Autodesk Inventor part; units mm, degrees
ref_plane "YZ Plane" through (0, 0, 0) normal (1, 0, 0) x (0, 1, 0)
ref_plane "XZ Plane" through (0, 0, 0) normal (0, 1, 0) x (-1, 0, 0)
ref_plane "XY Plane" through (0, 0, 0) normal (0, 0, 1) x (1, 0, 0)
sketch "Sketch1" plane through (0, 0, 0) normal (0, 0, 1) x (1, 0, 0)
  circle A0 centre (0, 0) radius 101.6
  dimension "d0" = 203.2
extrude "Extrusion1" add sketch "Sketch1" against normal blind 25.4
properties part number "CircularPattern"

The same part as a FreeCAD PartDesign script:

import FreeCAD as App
import Part
import Sketcher

V = App.Vector
Q = App.Units.Quantity

doc = App.newDocument("Part")
params = doc.addObject("Spreadsheet::Sheet", "Params")
for row, (alias, value) in enumerate([
    ("sketch1_diameter", "8 in"),
    ("pad1_length", "1 in"),
], start=1):
    params.set(f"A{row}", alias)
    params.set(f"B{row}", "=" + value)
    params.setAlias(f"B{row}", alias)

body = doc.addObject("PartDesign::Body", "Body")

# Sketch on XY plane
sketch1 = body.newObject("Sketcher::SketchObject", "Sketch")
sketch1.AttachmentSupport = (doc.getObject("XY_Plane"), [""])
sketch1.MapMode = "FlatFace"
sketch1.addGeometry(Part.Circle(V(0, 0, 0), V(0, 0, 1), 102), False)
sketch1.addConstraint([
    Sketcher.Constraint("Coincident", 0, 3, -1, 1),
    Sketcher.Constraint("Diameter", 0, Q("8 in")),
])
sketch1.setExpression("Constraints[1]", "Params.sketch1_diameter")
pad1 = body.newObject("PartDesign::Pad", "Pad")
pad1.Profile = sketch1
pad1.setExpression("Length", "Params.pad1_length")
pad1.Reversed = True

doc.recompute()
